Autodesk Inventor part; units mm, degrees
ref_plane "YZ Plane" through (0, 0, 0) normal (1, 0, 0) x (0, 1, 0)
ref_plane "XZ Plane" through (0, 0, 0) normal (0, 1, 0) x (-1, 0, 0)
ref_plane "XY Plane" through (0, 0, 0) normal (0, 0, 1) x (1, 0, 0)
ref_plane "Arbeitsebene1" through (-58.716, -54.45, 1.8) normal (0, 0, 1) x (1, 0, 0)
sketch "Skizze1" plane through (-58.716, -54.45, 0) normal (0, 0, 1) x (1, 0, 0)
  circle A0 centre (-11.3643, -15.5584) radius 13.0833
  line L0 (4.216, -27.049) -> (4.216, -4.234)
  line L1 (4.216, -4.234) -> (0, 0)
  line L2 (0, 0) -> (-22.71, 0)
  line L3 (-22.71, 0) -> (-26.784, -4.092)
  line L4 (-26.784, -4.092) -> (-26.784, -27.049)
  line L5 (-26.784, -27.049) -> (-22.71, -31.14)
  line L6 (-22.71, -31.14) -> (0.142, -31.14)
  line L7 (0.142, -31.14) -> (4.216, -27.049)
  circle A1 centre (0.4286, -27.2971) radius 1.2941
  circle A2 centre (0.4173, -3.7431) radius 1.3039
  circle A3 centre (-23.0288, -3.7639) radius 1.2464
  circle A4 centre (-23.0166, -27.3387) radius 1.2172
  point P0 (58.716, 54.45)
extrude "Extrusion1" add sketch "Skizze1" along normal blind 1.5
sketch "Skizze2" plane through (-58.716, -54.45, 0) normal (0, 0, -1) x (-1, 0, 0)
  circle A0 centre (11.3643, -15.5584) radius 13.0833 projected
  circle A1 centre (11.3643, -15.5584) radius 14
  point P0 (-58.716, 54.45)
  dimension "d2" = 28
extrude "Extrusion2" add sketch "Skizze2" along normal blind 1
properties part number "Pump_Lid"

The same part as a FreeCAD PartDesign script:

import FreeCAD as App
import Part
import Sketcher
from FreeCAD import Vector
Q = App.Units.Quantity


def add_polygon(sketch, points):
    """Adds a closed chain of lines whose ends are joined by coincident constraints."""
    first, n = sketch.GeometryCount, len(points)
    for a, b in zip(points, points[1:] + points[:1]):
        sketch.addGeometry(Part.LineSegment(App.Vector(*a, 0), App.Vector(*b, 0)), False)
    for i in range(n):
        sketch.addConstraint(Sketcher.Constraint("Coincident", first + i, 2, first + (i + 1) % n, 1))

doc = App.newDocument("Part")
params = doc.addObject("Spreadsheet::Sheet", "Params")
for row, (alias, value) in enumerate([
    ("sketch1_width", "22.71 mm"),
    ("pad1_length", "1.5 mm"),
    ("sketch2_diameter", "28 mm"),
    ("pad2_length", "1 mm"),
], start=1):
    params.set(f"A{row}", alias)
    params.set(f"B{row}", "=" + value)
    params.setAlias(f"B{row}", alias)

body = doc.addObject("PartDesign::Body", "Body")

sketch1 = body.newObject("Sketcher::SketchObject", "Sketch")
sketch1.AttachmentSupport = (doc.getObject("XY_Plane"), [""])
sketch1.MapMode = "FlatFace"
add_polygon(sketch1, [(-58.574, -85.59), (-54.5, -81.499), (-54.5, -58.684), (-58.716, -54.45), (-81.426, -54.45), (-85.5, -58.542), (-85.5, -81.499), (-81.426, -85.59)])
sketch1.addGeometry(Part.Circle(Vector(-81.7326, -81.7887, 0), Vector(0, 0, 1), 1.2172), False)
sketch1.addGeometry(Part.Circle(Vector(-58.2874, -81.7471, 0), Vector(0, 0, 1), 1.2941), False)
sketch1.addGeometry(Part.Circle(Vector(-70.0803, -70.0084, 0), Vector(0, 0, 1), 13.0833), False)
sketch1.addGeometry(Part.Circle(Vector(-81.7448, -58.2139, 0), Vector(0, 0, 1), 1.2464), False)
sketch1.addGeometry(Part.Circle(Vector(-58.2987, -58.1931, 0), Vector(0, 0, 1), 1.3039), False)
sketch1.addConstraint([
    Sketcher.Constraint("Vertical", 1),
    Sketcher.Constraint("Horizontal", 3),
    Sketcher.Constraint("Vertical", 5),
    Sketcher.Constraint("Horizontal", 7),
    Sketcher.Constraint("Parallel", 0, 4),
    Sketcher.Constraint("Parallel", 2, 6),
    Sketcher.Constraint("Horizontal", 0, 2, 5, 2),
    Sketcher.Constraint("Vertical", 3, 2, 6, 2),
    Sketcher.Constraint("Equal", 0, 6),
    Sketcher.Constraint("Diameter", 8, Q("2.4344 mm")),
    Sketcher.Constraint("Diameter", 9, Q("2.5882 mm")),
    Sketcher.Constraint("Diameter", 10, Q("26.1666 mm")),
    Sketcher.Constraint("Diameter", 11, Q("2.4928 mm")),
    Sketcher.Constraint("Diameter", 12, Q("2.6078 mm")),
    Sketcher.Constraint("DistanceX", 3, 2, 3, 1, Q("22.71 mm")),
    Sketcher.Constraint("DistanceX", 0, 2, -1, 1, Q("54.5 mm")),
    Sketcher.Constraint("DistanceX", 4, 2, -1, 1, Q("85.5 mm")),
    Sketcher.Constraint("Angle", 0, Q("45.1193 deg")),
    Sketcher.Constraint("DistanceX", 7, 1, 7, 2, Q("22.852 mm")),
    Sketcher.Constraint("DistanceY", 1, 1, 1, 2, Q("22.815 mm")),
    Sketcher.Constraint("DistanceY", 2, 2, -1, 1, Q("54.45 mm")),
    Sketcher.Constraint("DistanceY", 1, 2, 11, 3, Q("0.47 mm")),
    Sketcher.Constraint("DistanceY", 9, 3, -1, 1, Q("81.747 mm")),
    Sketcher.Constraint("DistanceY", 12, 3, -1, 1, Q("58.193 mm")),
    Sketcher.Constraint("DistanceX", 10, 3, 9, 3, Q("11.793 mm")),
    Sketcher.Constraint("DistanceX", 11, 3, 12, 3, Q("23.446 mm")),
    Sketcher.Constraint("DistanceX", 8, 3, 12, 3, Q("23.434 mm")),
    Sketcher.Constraint("DistanceX", 8, 3, -1, 1, Q("81.7326 mm")),
    Sketcher.Constraint("DistanceY", 8, 3, -1, 1, Q("81.7887 mm")),
    Sketcher.Constraint("DistanceX", 9, 3, -1, 1, Q("58.2874 mm")),
    Sketcher.Constraint("DistanceY", 10, 3, -1, 1, Q("70.0084 mm")),
])
sketch1.setExpression("Constraints[22]", "Params.sketch1_width")
pad1 = body.newObject("PartDesign::Pad", "Pad")
pad1.Profile = sketch1
pad1.setExpression("Length", "Params.pad1_length")

sketch2 = body.newObject("Sketcher::SketchObject", "Sketch001")
sketch2.AttachmentSupport = (doc.getObject("XY_Plane"), [""])
sketch2.MapMode = "FlatFace"
sketch2.addGeometry([
    Part.Circle(Vector(-70.0803, -70.0084, 0), Vector(0, 0, 1), 14),
    Part.Circle(Vector(-70.0803, -70.0084, 0), Vector(0, 0, 1), 13.0833),
], False)
sketch2.addConstraint([
    Sketcher.Constraint("Coincident", 1, 3, 0, 3),
    Sketcher.Constraint("Diameter", 0, Q("28 mm")),
    Sketcher.Constraint("Diameter", 1, Q("26.1666 mm")),
    Sketcher.Constraint("DistanceX", 0, 3, -1, 1, Q("70.0803 mm")),
    Sketcher.Constraint("DistanceY", 0, 3, -1, 1, Q("70.0084 mm")),
])
sketch2.setExpression("Constraints[1]", "Params.sketch2_diameter")
pad2 = body.newObject("PartDesign::Pad", "Pad001")
pad2.Profile = sketch2
pad2.setExpression("Length", "Params.pad2_length")
pad2.Reversed = True

doc.recompute()
